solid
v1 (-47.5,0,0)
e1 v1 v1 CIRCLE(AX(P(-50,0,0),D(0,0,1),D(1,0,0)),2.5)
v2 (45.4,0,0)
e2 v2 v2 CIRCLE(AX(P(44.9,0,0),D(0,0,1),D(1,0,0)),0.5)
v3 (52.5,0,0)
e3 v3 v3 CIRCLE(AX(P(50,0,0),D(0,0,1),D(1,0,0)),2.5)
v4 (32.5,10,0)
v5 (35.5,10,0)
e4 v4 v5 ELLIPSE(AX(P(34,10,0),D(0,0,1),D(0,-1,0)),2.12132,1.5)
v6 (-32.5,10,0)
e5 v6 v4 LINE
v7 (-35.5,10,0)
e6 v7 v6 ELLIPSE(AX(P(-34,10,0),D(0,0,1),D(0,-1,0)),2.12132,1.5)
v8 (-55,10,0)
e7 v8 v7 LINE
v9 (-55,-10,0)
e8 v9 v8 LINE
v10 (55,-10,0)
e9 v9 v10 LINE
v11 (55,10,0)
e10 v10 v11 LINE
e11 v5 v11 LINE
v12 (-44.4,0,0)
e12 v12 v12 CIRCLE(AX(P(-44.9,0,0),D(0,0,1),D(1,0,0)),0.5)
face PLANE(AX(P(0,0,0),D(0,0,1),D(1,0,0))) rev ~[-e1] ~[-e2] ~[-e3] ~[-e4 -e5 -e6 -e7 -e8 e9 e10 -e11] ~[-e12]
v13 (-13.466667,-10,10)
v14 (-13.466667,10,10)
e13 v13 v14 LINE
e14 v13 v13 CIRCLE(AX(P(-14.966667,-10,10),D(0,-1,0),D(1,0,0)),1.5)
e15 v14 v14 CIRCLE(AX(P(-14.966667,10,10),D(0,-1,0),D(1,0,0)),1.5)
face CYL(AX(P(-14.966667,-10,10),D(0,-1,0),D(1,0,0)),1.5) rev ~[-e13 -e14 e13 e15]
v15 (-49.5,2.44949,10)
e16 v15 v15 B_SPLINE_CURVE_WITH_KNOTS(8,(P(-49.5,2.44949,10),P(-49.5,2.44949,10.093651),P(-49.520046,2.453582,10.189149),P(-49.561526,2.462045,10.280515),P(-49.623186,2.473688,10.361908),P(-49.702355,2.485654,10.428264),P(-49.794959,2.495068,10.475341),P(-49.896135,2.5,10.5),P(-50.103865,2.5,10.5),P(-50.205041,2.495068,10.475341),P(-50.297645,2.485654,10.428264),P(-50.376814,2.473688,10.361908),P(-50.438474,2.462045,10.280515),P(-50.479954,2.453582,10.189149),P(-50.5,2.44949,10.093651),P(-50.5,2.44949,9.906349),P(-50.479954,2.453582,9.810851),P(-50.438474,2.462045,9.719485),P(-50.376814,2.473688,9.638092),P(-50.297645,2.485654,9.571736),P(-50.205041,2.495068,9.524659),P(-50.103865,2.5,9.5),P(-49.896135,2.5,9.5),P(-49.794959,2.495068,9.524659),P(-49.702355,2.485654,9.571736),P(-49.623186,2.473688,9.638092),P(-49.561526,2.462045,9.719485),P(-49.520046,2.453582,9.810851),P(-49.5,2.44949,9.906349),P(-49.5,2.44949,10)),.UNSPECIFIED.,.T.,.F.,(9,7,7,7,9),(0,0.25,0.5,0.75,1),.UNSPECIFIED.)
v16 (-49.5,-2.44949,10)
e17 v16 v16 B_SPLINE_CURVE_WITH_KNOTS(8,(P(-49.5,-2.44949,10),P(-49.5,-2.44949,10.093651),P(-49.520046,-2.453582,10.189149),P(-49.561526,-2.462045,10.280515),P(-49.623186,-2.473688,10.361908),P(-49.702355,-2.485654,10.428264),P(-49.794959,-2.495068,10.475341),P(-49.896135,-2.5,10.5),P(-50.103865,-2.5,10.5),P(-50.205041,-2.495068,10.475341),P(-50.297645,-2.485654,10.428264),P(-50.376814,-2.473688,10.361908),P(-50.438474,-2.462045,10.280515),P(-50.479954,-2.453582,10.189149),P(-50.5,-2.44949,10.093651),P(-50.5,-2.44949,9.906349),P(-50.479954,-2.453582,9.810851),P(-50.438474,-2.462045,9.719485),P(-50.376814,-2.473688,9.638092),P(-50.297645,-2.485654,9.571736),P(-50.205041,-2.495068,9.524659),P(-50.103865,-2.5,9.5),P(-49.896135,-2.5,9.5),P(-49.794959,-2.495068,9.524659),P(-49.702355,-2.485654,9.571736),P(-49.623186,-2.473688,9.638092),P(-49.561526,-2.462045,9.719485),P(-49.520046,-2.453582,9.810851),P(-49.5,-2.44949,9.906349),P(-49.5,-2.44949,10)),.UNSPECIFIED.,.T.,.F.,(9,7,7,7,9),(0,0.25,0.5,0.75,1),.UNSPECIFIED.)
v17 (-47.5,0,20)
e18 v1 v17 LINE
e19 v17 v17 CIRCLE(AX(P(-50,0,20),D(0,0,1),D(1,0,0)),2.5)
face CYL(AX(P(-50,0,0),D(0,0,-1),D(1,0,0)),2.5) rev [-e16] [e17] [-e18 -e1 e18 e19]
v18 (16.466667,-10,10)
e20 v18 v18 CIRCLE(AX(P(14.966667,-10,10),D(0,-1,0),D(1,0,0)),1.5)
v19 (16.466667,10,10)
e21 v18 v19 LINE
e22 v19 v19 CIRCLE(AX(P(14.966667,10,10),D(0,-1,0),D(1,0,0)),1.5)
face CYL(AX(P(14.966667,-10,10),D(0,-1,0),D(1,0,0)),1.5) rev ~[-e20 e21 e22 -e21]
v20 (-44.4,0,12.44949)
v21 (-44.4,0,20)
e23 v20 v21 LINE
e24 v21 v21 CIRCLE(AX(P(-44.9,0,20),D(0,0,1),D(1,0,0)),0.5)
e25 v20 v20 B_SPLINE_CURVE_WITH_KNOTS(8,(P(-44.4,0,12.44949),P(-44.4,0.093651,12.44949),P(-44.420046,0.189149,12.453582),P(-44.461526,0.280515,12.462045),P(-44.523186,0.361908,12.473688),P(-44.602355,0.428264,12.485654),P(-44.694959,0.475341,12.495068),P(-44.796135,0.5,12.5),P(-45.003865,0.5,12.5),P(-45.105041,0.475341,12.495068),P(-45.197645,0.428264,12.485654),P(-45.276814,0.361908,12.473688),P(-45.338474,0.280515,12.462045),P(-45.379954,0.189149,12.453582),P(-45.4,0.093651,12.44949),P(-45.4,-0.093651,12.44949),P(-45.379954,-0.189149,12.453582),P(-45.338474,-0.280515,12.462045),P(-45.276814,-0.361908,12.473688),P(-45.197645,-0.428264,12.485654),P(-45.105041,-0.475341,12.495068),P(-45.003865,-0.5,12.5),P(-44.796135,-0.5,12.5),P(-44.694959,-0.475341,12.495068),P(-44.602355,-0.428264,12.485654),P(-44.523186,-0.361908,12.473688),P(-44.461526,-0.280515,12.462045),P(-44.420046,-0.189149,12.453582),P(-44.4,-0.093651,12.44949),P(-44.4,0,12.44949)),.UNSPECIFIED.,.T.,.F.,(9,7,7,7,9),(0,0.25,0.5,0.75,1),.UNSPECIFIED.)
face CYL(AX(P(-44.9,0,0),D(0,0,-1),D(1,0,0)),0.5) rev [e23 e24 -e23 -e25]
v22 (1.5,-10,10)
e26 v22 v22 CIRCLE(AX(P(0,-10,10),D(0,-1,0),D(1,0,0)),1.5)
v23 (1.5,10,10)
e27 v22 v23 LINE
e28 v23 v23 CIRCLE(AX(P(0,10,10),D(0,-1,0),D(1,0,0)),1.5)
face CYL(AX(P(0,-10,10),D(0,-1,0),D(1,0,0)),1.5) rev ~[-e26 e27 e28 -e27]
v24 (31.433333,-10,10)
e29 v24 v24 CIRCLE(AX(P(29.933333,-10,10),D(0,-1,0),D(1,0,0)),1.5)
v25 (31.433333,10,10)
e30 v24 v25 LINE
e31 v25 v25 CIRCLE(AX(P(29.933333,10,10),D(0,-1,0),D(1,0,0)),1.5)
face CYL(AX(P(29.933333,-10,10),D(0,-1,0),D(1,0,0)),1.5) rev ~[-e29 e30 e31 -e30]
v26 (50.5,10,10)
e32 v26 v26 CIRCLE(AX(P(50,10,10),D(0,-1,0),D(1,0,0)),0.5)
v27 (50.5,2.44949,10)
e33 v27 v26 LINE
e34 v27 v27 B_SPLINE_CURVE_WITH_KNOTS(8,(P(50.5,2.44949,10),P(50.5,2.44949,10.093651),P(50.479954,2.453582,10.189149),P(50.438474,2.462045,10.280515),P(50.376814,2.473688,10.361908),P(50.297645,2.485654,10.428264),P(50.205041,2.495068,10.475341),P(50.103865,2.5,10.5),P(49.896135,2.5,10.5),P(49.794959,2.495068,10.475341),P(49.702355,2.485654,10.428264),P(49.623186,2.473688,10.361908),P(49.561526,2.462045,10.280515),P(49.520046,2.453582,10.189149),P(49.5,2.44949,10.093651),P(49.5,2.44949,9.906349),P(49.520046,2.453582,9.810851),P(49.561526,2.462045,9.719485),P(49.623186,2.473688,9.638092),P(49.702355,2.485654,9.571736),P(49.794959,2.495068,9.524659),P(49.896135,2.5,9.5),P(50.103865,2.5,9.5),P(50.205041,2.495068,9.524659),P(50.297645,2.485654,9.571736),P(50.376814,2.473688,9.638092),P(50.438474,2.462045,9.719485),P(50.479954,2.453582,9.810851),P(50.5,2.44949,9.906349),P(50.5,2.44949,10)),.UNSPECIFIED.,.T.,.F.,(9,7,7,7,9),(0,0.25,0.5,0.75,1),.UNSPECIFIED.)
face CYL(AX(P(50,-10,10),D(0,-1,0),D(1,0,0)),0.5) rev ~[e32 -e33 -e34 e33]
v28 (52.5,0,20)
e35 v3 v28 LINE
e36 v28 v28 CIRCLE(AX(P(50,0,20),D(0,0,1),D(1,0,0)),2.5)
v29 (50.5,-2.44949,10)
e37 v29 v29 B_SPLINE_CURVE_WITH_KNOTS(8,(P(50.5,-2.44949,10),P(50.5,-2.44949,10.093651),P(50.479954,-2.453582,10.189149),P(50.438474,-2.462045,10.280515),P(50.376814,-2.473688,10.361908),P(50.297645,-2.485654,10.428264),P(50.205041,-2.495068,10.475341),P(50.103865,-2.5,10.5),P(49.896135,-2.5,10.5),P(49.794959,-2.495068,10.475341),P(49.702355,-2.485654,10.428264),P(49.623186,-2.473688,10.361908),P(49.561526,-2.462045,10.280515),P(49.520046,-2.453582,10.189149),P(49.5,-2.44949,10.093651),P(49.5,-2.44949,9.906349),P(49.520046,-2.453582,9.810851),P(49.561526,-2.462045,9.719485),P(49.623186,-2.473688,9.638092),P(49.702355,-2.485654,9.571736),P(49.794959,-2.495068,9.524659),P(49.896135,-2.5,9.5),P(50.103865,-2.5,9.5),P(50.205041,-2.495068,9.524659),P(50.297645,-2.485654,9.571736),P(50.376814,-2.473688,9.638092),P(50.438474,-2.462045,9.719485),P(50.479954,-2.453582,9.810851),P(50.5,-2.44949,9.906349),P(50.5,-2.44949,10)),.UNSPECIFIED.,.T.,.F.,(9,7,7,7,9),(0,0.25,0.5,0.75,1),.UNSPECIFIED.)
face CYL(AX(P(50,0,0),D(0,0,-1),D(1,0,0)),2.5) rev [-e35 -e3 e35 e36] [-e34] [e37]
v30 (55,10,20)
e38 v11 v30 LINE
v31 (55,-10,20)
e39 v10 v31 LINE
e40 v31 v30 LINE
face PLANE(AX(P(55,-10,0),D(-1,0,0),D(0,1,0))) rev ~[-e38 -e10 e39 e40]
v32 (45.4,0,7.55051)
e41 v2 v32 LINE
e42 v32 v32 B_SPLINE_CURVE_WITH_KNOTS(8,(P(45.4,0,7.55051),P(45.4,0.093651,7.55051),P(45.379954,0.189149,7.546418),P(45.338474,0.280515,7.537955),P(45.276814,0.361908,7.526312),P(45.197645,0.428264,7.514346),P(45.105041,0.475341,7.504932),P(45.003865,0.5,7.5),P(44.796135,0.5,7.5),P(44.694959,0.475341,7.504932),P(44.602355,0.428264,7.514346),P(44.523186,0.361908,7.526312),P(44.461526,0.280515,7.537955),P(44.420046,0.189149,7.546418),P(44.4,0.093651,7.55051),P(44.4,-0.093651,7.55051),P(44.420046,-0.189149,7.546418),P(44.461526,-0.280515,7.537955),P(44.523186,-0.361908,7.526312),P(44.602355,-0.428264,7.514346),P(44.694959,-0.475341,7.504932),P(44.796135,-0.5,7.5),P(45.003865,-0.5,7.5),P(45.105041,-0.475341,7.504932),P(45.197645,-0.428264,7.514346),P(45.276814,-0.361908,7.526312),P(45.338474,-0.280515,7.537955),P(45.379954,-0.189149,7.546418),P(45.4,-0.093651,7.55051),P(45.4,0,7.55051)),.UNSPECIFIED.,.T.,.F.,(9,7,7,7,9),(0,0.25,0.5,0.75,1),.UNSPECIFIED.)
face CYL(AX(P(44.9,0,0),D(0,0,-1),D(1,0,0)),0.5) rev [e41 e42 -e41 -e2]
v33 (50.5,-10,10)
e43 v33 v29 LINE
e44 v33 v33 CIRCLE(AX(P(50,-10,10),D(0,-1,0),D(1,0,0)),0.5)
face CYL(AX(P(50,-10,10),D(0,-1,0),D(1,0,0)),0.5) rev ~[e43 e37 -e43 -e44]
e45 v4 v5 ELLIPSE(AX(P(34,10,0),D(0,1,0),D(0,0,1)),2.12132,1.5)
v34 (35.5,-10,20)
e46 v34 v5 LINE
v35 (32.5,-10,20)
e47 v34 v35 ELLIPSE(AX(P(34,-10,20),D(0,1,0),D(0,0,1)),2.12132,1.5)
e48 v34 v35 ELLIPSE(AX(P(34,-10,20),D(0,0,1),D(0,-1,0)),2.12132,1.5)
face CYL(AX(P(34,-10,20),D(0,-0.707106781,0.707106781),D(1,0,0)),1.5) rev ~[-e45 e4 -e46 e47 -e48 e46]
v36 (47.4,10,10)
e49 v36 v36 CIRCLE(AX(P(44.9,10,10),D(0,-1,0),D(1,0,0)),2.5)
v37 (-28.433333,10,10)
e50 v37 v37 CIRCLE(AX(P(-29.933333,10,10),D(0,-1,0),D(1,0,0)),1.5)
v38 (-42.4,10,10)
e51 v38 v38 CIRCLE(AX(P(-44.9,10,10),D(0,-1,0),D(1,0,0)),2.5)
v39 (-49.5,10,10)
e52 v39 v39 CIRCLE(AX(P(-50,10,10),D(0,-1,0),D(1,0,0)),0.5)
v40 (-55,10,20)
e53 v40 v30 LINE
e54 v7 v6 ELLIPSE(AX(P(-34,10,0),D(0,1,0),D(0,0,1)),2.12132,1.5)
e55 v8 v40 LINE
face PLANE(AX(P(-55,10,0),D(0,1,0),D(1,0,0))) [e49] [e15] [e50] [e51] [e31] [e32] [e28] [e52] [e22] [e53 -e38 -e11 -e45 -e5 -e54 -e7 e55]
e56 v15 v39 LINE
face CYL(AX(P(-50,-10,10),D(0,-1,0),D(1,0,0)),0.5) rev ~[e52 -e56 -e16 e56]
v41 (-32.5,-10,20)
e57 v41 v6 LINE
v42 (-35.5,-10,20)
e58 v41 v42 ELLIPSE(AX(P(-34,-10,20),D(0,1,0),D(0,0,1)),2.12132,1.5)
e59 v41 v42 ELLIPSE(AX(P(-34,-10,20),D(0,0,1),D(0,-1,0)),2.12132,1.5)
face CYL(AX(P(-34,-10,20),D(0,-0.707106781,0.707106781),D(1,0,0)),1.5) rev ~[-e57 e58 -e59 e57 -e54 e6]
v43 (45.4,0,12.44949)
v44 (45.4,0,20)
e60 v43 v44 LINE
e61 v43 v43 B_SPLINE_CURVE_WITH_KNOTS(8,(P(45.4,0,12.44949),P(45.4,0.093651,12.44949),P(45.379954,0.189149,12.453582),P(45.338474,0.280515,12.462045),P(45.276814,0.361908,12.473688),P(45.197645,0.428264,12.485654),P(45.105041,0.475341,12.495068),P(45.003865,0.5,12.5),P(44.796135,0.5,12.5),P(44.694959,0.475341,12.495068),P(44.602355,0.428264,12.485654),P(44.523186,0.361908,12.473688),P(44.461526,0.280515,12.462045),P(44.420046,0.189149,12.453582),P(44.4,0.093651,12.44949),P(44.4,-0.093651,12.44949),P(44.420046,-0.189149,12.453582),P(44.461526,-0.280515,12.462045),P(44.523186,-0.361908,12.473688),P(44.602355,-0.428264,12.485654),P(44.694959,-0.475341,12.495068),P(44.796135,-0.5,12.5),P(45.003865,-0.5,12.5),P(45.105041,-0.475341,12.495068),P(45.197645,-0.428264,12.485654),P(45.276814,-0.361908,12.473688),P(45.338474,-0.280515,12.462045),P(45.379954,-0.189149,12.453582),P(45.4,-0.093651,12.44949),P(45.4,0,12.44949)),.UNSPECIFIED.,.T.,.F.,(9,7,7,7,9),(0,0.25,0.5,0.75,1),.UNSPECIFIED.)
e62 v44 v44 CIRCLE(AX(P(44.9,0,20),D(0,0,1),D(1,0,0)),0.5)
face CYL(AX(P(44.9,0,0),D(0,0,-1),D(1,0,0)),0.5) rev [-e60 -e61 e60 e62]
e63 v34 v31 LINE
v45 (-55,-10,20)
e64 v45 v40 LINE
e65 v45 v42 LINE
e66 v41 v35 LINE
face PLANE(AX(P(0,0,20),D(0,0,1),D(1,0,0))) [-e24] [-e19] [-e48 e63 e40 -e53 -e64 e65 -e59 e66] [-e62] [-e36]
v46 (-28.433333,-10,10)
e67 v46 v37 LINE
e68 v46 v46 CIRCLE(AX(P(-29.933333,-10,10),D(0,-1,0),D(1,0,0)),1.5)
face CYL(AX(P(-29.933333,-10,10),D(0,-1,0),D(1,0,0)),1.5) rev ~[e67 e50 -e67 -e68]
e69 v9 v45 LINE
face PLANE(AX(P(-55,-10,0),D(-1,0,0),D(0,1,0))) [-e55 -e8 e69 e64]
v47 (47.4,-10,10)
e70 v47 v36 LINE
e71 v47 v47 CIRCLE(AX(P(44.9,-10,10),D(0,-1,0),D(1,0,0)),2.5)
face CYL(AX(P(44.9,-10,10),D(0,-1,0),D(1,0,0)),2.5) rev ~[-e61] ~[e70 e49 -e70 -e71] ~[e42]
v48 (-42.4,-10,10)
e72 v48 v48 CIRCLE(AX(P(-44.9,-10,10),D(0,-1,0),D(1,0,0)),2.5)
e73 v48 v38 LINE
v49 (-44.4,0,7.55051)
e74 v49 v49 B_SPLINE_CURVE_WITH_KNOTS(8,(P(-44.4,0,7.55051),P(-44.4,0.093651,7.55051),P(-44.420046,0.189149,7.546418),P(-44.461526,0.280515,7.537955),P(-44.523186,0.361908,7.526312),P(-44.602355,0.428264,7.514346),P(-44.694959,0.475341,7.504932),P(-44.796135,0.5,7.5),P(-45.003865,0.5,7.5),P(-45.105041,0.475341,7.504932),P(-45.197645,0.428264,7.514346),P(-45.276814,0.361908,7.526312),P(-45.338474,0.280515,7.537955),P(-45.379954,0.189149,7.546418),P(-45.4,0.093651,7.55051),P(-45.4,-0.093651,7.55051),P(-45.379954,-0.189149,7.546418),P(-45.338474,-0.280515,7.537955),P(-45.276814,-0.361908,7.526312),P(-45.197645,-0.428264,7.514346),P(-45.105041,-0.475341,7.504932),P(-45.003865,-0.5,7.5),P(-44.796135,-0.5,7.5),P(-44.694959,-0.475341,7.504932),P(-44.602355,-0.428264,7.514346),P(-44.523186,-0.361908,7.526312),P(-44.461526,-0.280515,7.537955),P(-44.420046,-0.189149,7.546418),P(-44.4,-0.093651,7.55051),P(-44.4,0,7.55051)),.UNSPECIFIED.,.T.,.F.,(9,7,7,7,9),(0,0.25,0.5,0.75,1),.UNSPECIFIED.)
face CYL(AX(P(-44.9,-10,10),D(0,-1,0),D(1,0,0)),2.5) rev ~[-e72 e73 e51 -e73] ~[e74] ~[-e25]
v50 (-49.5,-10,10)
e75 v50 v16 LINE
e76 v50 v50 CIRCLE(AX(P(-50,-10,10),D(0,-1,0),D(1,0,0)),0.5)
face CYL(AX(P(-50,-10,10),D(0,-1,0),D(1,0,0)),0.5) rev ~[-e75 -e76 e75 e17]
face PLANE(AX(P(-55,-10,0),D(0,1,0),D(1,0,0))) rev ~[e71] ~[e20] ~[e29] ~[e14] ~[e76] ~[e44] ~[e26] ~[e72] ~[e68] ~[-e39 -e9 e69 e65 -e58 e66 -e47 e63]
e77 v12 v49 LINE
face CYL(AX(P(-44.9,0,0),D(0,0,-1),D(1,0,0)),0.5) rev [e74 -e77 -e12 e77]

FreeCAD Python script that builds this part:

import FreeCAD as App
import Part
import Sketcher
Q = App.Units.Quantity

doc = App.newDocument("Part")
body = doc.addObject("PartDesign::Body", "Body")

# Sketch on XY plane
sketch1 = body.newObject("Sketcher::SketchObject", "Sketch")
sketch1.AttachmentSupport = (doc.getObject("XY_Plane"), [""])
sketch1.MapMode = "FlatFace"
sketch1.addGeometry([
    Part.LineSegment(App.Vector(-55, 10, 0), App.Vector(-55, -10, 0)),  # 0
    Part.LineSegment(App.Vector(-55, -10, 0), App.Vector(55, -10, 0)),  # 1
    Part.LineSegment(App.Vector(55, -10, 0), App.Vector(55, 10, 0)),  # 2
    Part.LineSegment(App.Vector(55, 10, 0), App.Vector(-55, 10, 0)),  # 3
    Part.Circle(App.Vector(-50, 0, 0), App.Vector(0, 0, 1), 2.5),  # 4
    Part.Circle(App.Vector(-44.9, 0, 0), App.Vector(0, 0, 1), 0.5),  # 5
    Part.Circle(App.Vector(44.9, 0, 0), App.Vector(0, 0, 1), 0.5),  # 6
    Part.Circle(App.Vector(50, 0, 0), App.Vector(0, 0, 1), 2.5),  # 7
], False)
sketch1.addConstraint([
    Sketcher.Constraint("Coincident", 0, 2, 1, 1),
    Sketcher.Constraint("Coincident", 1, 2, 2, 1),
    Sketcher.Constraint("Coincident", 2, 2, 3, 1),
    Sketcher.Constraint("Coincident", 3, 2, 0, 1),
    Sketcher.Constraint("Vertical", 0),
    Sketcher.Constraint("Horizontal", 1),
    Sketcher.Constraint("Vertical", 2),
    Sketcher.Constraint("Horizontal", 3),
    Sketcher.Constraint("Equal", 5, 6),
    Sketcher.Constraint("Equal", 4, 7),
    Sketcher.Constraint("Symmetric", 5, 3, 6, 3, -1, 1),
    Sketcher.Constraint("Symmetric", 4, 3, 7, 3, -1, 1),
    Sketcher.Constraint("Symmetric", 0, 2, 2, 2, -1, 1),
    Sketcher.Constraint("PointOnObject", 4, 3, -1),
    Sketcher.Constraint("PointOnObject", 5, 3, -1),
    Sketcher.Constraint("Diameter", 4, Q("5 mm")),
    Sketcher.Constraint("Diameter", 5, Q("1 mm")),
    Sketcher.Constraint("DistanceX", 1, 1, 1, 2, Q("110 mm")),
    Sketcher.Constraint("DistanceY", 0, 2, 0, 1, Q("20 mm")),
    Sketcher.Constraint("DistanceX", 4, 3, -1, 1, Q("50 mm")),
    Sketcher.Constraint("DistanceX", 5, 3, -1, 1, Q("44.9 mm")),
])
pad1 = body.newObject("PartDesign::Pad", "Pad")
pad1.Profile = sketch1
pad1.Length = 20

# Sketch on an angled plane
sketch2 = body.newObject("Sketcher::SketchObject", "Sketch001")
sketch2.Placement = App.Placement(App.Vector(0, -15, 15), App.Rotation(App.Vector(1, 0, 0), App.Vector(0, 0.707106781, 0.707106781), App.Vector(0, -0.707106781, 0.707106781), "ZXY"))
sketch2.addGeometry([
    Part.Circle(App.Vector(-34, 7.071068, 0), App.Vector(0, 0, 1), 1.5),
    Part.Circle(App.Vector(34, 7.071068, 0), App.Vector(0, 0, 1), 1.5),
], False)
sketch2.addConstraint([
    Sketcher.Constraint("Equal", 0, 1),
    Sketcher.Constraint("Symmetric", 0, 3, 1, 3, -2),
    Sketcher.Constraint("Diameter", 0, Q("3 mm")),
    Sketcher.Constraint("DistanceX", 0, 3, -1, 1, Q("34 mm")),
    Sketcher.Constraint("DistanceY", -1, 1, 0, 3, Q("7.071068 mm")),
])
pocket1 = body.newObject("PartDesign::Pocket", "Pocket")
pocket1.Profile = sketch2
pocket1.Type = "ThroughAll"

# Sketch on XZ plane
sketch3 = body.newObject("Sketcher::SketchObject", "Sketch002")
sketch3.AttachmentSupport = (doc.getObject("XZ_Plane"), [""])
sketch3.MapMode = "FlatFace"
sketch3.AttachmentOffset = App.Placement(App.Vector(0, 0, 10), App.Rotation())
sketch3.addGeometry([
    Part.Circle(App.Vector(-44.9, 10, 0), App.Vector(0, 0, 1), 2.5),  # 0
    Part.Circle(App.Vector(44.9, 10, 0), App.Vector(0, 0, 1), 2.5),  # 1
    Part.Circle(App.Vector(-50, 10, 0), App.Vector(0, 0, 1), 0.5),  # 2
    Part.Circle(App.Vector(-29.933333, 10, 0), App.Vector(0, 0, 1), 1.5),  # 3
    Part.Circle(App.Vector(-14.966667, 10, 0), App.Vector(0, 0, 1), 1.5),  # 4
    Part.Circle(App.Vector(0, 10, 0), App.Vector(0, 0, 1), 1.5),  # 5
    Part.Circle(App.Vector(14.966667, 10, 0), App.Vector(0, 0, 1), 1.5),  # 6
    Part.Circle(App.Vector(29.933333, 10, 0), App.Vector(0, 0, 1), 1.5),  # 7
    Part.Circle(App.Vector(50, 10, 0), App.Vector(0, 0, 1), 0.5),  # 8
], False)
sketch3.addConstraint([
    Sketcher.Constraint("Equal", 0, 1),
    Sketcher.Constraint("Equal", 3, 4),
    Sketcher.Constraint("Equal", 4, 5),
    Sketcher.Constraint("Equal", 5, 6),
    Sketcher.Constraint("Equal", 6, 7),
    Sketcher.Constraint("Equal", 2, 8),
    Sketcher.Constraint("Symmetric", 0, 3, 1, 3, -2),
    Sketcher.Constraint("Symmetric", 4, 3, 6, 3, -2),
    Sketcher.Constraint("Symmetric", 3, 3, 7, 3, -2),
    Sketcher.Constraint("Symmetric", 2, 3, 8, 3, -2),
    Sketcher.Constraint("PointOnObject", 5, 3, -2),
    Sketcher.Constraint("Horizontal", 1, 3, 2, 3),
    Sketcher.Constraint("Horizontal", 2, 3, 3, 3),
    Sketcher.Constraint("Horizontal", 3, 3, 4, 3),
    Sketcher.Constraint("Horizontal", 4, 3, 5, 3),
    Sketcher.Constraint("Diameter", 0, Q("5 mm")),
    Sketcher.Constraint("Diameter", 2, Q("1 mm")),
    Sketcher.Constraint("Diameter", 3, Q("3 mm")),
    Sketcher.Constraint("DistanceY", -1, 1, 0, 3, Q("10 mm")),
    Sketcher.Constraint("DistanceX", 2, 3, -1, 1, Q("50 mm")),
    Sketcher.Constraint("DistanceX", 0, 3, -1, 1, Q("44.9 mm")),
    Sketcher.Constraint("DistanceX", 3, 3, 6, 3, Q("44.9 mm")),
    Sketcher.Constraint("DistanceX", 3, 3, -1, 1, Q("29.933333 mm")),
])
pocket2 = body.newObject("PartDesign::Pocket", "Pocket001")
pocket2.Profile = sketch3
pocket2.Type = "ThroughAll"

doc.recompute()
